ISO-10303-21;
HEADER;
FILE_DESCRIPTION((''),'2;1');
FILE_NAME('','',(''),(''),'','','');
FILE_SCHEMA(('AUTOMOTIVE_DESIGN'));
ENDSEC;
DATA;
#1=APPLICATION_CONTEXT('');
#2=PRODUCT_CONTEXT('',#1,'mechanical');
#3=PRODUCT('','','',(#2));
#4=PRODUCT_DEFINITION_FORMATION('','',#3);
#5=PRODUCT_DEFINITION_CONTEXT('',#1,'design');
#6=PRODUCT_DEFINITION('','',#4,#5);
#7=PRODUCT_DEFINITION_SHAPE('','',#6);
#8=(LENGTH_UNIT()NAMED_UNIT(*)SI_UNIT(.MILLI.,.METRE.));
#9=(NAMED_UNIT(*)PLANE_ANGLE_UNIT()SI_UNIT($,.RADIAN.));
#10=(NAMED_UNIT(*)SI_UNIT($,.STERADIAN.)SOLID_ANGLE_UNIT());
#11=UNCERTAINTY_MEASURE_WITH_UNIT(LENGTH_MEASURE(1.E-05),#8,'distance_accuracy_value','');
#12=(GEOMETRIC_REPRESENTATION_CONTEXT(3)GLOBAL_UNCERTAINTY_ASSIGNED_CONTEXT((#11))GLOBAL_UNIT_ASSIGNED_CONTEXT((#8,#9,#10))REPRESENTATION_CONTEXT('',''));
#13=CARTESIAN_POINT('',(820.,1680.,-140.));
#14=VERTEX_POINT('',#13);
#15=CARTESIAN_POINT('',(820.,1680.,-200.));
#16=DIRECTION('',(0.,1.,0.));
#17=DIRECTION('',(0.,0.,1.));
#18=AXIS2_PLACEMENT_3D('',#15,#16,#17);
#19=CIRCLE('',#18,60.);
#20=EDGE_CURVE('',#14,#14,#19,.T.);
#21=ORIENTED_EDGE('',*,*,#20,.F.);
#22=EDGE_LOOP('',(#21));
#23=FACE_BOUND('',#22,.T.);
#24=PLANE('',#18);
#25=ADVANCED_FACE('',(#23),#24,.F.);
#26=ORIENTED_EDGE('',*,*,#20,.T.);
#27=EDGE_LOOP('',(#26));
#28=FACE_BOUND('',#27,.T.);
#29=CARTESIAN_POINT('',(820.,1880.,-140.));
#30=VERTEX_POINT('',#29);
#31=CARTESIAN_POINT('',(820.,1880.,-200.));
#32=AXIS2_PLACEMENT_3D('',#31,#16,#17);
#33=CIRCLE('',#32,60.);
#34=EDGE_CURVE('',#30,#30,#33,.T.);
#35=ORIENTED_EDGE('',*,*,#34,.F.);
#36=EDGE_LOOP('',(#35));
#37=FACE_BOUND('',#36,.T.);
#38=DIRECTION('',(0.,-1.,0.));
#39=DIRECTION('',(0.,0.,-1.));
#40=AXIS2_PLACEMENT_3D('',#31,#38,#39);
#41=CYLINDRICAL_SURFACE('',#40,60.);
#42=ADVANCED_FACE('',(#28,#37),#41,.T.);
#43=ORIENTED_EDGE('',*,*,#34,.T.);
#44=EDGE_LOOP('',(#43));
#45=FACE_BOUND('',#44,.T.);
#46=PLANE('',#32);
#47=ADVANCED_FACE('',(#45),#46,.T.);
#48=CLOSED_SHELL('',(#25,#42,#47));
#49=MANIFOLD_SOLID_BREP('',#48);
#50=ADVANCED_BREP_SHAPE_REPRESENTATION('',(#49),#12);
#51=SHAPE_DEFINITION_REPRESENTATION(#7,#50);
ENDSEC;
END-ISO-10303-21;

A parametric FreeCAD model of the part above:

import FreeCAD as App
import Part
import Sketcher

doc = App.newDocument("Part")
params = doc.addObject("Spreadsheet::Sheet", "Params")
for row, (alias, value) in enumerate([
    ("sketch1_diameter", "120 mm"),
    ("pad1_length", "200 mm"),
], start=1):
    params.set(f"A{row}", alias)
    params.set(f"B{row}", "=" + value)
    params.setAlias(f"B{row}", alias)

body = doc.addObject("PartDesign::Body", "Body")

# Sketch on XZ plane
sketch1 = doc.addObject("Sketcher::SketchObject", "Sketch")
body.addObject(sketch1)
sketch1.AttachmentSupport = (doc.XZ_Plane, [""])
sketch1.MapMode = "FlatFace"
sketch1.AttachmentOffset = App.Placement(App.Vector(0, 0, -1680), App.Rotation())
sketch1.addGeometry(Part.Circle(App.Vector(820, -200, 0), App.Vector(0, 0, 1), 60), False)
sketch1.addConstraint(Sketcher.Constraint("Diameter", 0, 120.0))
sketch1.addConstraint(Sketcher.Constraint("DistanceX", -1, 1, 0, 3, 820.0))
sketch1.addConstraint(Sketcher.Constraint("DistanceY", 0, 3, -1, 1, 200.0))
sketch1.setExpression("Constraints[0]", "Params.sketch1_diameter")
pad1 = doc.addObject("PartDesign::Pad", "Pad")
body.addObject(pad1)
pad1.Profile = sketch1
pad1.setExpression("Length", "Params.pad1_length")
pad1.Reversed = True

doc.recompute()
